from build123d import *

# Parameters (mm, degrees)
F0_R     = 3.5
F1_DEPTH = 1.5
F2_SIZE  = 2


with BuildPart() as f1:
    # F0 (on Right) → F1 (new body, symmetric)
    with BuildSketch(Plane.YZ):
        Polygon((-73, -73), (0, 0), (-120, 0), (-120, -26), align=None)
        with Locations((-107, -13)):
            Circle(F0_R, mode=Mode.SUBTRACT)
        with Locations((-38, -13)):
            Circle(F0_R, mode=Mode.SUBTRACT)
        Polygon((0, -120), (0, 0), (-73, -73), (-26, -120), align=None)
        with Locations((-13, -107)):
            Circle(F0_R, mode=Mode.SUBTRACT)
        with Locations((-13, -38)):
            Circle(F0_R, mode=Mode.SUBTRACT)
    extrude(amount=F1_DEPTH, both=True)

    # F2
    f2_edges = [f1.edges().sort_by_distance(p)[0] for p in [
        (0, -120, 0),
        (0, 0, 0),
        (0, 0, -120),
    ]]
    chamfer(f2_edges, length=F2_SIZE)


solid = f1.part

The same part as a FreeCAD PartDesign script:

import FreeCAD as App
import Part
import Sketcher

V = App.Vector


def edges_at(feature, points):
    """Names of the edges that pass closest to the given points."""
    edges = feature.Shape.Edges
    near = lambda p: min(range(len(edges)), key=lambda i: edges[i].distToShape(Part.Vertex(*p))[0])
    return sorted({f"Edge{near(p) + 1}" for p in points})

doc = App.newDocument("Part")
body = doc.addObject("PartDesign::Body", "Body")

# Sketch on YZ plane
sketch1 = body.newObject("Sketcher::SketchObject", "Sketch")
sketch1.AttachmentSupport = (doc.getObject("YZ_Plane"), [""])
sketch1.MapMode = "FlatFace"
sketch1.addGeometry([
    Part.LineSegment(V(-120, -26, 0), V(-26, -120, 0)),  # 0
    Part.LineSegment(V(-26, -120, 0), V(0, -120, 0)),  # 1
    Part.LineSegment(V(0, -120, 0), V(0, 0, 0)),  # 2
    Part.LineSegment(V(0, 0, 0), V(-120, 0, 0)),  # 3
    Part.LineSegment(V(-120, 0, 0), V(-120, -26, 0)),  # 4
    Part.Circle(V(-13, -107, 0), V(0, 0, 1), 3.5),  # 5
    Part.Circle(V(-107, -13, 0), V(0, 0, 1), 3.5),  # 6
    Part.Circle(V(-13, -38, 0), V(0, 0, 1), 3.5),  # 7
    Part.Circle(V(-38, -13, 0), V(0, 0, 1), 3.5),  # 8
], False)
sketch1.addConstraint([
    Sketcher.Constraint("Coincident", 0, 2, 1, 1),
    Sketcher.Constraint("Coincident", 1, 2, 2, 1),
    Sketcher.Constraint("Coincident", 2, 2, 3, 1),
    Sketcher.Constraint("Coincident", 3, 2, 4, 1),
    Sketcher.Constraint("Coincident", 4, 2, 0, 1),
    Sketcher.Constraint("Horizontal", 1),
    Sketcher.Constraint("Vertical", 2),
    Sketcher.Constraint("Horizontal", 3),
    Sketcher.Constraint("Vertical", 4),
    Sketcher.Constraint("Coincident", 2, 2, -1, 1),
    Sketcher.Constraint("Equal", 5, 6),
    Sketcher.Constraint("Equal", 6, 7),
    Sketcher.Constraint("Equal", 7, 8),
    Sketcher.Constraint("Horizontal", 6, 3, 8, 3),
    Sketcher.Constraint("Vertical", 5, 3, 7, 3),
    Sketcher.Constraint("Equal", 3, 2),
    Sketcher.Constraint("Equal", 1, 4),
    Sketcher.Constraint("Diameter", 5, 7.0),
    Sketcher.Constraint("DistanceX", 1, 1, 1, 2, 26.0),
    Sketcher.Constraint("DistanceX", 3, 2, 3, 1, 120.0),
    Sketcher.Constraint("DistanceX", 5, 3, -1, 1, 13.0),
    Sketcher.Constraint("DistanceY", 5, 3, -1, 1, 107.0),
    Sketcher.Constraint("DistanceX", 6, 3, -1, 1, 107.0),
    Sketcher.Constraint("DistanceY", 6, 3, -1, 1, 13.0),
    Sketcher.Constraint("DistanceY", 7, 3, -1, 1, 38.0),
    Sketcher.Constraint("DistanceX", 8, 3, -1, 1, 38.0),
])
pad1 = body.newObject("PartDesign::Pad", "Pad")
pad1.Profile = sketch1
pad1.Length = 3
pad1.Midplane = True
doc.recompute()

chamfer = body.newObject("PartDesign::Chamfer", "Chamfer")
chamfer.Base = (pad1, edges_at(pad1, [(0, -120, 0), (0, 0, 0), (0, 0, -120)]))
chamfer.Size = 2

doc.recompute()
